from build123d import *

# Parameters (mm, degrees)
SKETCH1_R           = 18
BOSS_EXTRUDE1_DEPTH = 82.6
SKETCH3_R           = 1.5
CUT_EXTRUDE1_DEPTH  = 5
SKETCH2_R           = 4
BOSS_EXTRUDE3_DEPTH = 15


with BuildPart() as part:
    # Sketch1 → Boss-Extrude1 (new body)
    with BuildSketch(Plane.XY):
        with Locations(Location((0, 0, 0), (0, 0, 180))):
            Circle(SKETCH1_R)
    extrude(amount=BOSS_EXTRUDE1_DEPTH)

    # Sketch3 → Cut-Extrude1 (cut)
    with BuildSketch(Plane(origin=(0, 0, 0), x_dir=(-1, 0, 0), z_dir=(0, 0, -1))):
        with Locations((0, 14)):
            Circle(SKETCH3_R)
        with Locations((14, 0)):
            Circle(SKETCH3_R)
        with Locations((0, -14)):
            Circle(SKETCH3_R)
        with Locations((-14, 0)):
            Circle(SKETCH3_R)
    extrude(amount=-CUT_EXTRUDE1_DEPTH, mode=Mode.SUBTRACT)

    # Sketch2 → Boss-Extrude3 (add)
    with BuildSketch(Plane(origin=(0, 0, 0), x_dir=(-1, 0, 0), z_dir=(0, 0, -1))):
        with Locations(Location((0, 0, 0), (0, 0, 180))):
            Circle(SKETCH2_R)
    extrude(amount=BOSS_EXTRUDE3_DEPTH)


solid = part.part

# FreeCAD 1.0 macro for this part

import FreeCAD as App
import Part
import Sketcher

doc = App.newDocument("Part")
body = doc.addObject("PartDesign::Body", "Body")

# Sketch on XY plane
sketch1 = body.newObject("Sketcher::SketchObject", "Sketch")
sketch1.AttachmentSupport = (doc.getObject("XY_Plane"), [""])
sketch1.MapMode = "FlatFace"
sketch1.addGeometry(Part.Circle(App.Vector(0, 0, 0), App.Vector(0, 0, 1), 18), False)
sketch1.addConstraint([
    Sketcher.Constraint("Coincident", 0, 3, -1, 1),
    Sketcher.Constraint("Diameter", 0, 36.0),
])
pad1 = body.newObject("PartDesign::Pad", "Pad")
pad1.Profile = sketch1
pad1.Length = 82.6

# Sketch on XY plane
sketch2 = body.newObject("Sketcher::SketchObject", "Sketch001")
sketch2.AttachmentSupport = (doc.getObject("XY_Plane"), [""])
sketch2.MapMode = "FlatFace"
sketch2.addGeometry([
    Part.Circle(App.Vector(0, 14, 0), App.Vector(0, 0, 1), 1.5),
    Part.Circle(App.Vector(-14, 0, 0), App.Vector(0, 0, 1), 1.5),
    Part.Circle(App.Vector(0, -14, 0), App.Vector(0, 0, 1), 1.5),
    Part.Circle(App.Vector(14, 0, 0), App.Vector(0, 0, 1), 1.5),
], False)
sketch2.addConstraint([
    Sketcher.Constraint("Equal", 0, 1),
    Sketcher.Constraint("Equal", 1, 2),
    Sketcher.Constraint("Equal", 2, 3),
    Sketcher.Constraint("Symmetric", 0, 3, 2, 3, -1, 1),
    Sketcher.Constraint("Symmetric", 1, 3, 3, 3, -1, 1),
    Sketcher.Constraint("PointOnObject", 0, 3, -2),
    Sketcher.Constraint("PointOnObject", 1, 3, -1),
    Sketcher.Constraint("Diameter", 0, 3.0),
    Sketcher.Constraint("DistanceY", -1, 1, 0, 3, 14.0),
    Sketcher.Constraint("DistanceX", 1, 3, -1, 1, 14.0),
])
pocket1 = body.newObject("PartDesign::Pocket", "Pocket")
pocket1.Profile = sketch2
pocket1.Length = 5
pocket1.Reversed = True

# Sketch on XY plane
sketch3 = body.newObject("Sketcher::SketchObject", "Sketch002")
sketch3.AttachmentSupport = (doc.getObject("XY_Plane"), [""])
sketch3.MapMode = "FlatFace"
sketch3.addGeometry(Part.Circle(App.Vector(0, 0, 0), App.Vector(0, 0, 1), 4), False)
sketch3.addConstraint([
    Sketcher.Constraint("Coincident", 0, 3, -1, 1),
    Sketcher.Constraint("Diameter", 0, 8.0),
])
pad2 = body.newObject("PartDesign::Pad", "Pad001")
pad2.Profile = sketch3
pad2.Length = 15
pad2.Reversed = True

doc.recompute()
